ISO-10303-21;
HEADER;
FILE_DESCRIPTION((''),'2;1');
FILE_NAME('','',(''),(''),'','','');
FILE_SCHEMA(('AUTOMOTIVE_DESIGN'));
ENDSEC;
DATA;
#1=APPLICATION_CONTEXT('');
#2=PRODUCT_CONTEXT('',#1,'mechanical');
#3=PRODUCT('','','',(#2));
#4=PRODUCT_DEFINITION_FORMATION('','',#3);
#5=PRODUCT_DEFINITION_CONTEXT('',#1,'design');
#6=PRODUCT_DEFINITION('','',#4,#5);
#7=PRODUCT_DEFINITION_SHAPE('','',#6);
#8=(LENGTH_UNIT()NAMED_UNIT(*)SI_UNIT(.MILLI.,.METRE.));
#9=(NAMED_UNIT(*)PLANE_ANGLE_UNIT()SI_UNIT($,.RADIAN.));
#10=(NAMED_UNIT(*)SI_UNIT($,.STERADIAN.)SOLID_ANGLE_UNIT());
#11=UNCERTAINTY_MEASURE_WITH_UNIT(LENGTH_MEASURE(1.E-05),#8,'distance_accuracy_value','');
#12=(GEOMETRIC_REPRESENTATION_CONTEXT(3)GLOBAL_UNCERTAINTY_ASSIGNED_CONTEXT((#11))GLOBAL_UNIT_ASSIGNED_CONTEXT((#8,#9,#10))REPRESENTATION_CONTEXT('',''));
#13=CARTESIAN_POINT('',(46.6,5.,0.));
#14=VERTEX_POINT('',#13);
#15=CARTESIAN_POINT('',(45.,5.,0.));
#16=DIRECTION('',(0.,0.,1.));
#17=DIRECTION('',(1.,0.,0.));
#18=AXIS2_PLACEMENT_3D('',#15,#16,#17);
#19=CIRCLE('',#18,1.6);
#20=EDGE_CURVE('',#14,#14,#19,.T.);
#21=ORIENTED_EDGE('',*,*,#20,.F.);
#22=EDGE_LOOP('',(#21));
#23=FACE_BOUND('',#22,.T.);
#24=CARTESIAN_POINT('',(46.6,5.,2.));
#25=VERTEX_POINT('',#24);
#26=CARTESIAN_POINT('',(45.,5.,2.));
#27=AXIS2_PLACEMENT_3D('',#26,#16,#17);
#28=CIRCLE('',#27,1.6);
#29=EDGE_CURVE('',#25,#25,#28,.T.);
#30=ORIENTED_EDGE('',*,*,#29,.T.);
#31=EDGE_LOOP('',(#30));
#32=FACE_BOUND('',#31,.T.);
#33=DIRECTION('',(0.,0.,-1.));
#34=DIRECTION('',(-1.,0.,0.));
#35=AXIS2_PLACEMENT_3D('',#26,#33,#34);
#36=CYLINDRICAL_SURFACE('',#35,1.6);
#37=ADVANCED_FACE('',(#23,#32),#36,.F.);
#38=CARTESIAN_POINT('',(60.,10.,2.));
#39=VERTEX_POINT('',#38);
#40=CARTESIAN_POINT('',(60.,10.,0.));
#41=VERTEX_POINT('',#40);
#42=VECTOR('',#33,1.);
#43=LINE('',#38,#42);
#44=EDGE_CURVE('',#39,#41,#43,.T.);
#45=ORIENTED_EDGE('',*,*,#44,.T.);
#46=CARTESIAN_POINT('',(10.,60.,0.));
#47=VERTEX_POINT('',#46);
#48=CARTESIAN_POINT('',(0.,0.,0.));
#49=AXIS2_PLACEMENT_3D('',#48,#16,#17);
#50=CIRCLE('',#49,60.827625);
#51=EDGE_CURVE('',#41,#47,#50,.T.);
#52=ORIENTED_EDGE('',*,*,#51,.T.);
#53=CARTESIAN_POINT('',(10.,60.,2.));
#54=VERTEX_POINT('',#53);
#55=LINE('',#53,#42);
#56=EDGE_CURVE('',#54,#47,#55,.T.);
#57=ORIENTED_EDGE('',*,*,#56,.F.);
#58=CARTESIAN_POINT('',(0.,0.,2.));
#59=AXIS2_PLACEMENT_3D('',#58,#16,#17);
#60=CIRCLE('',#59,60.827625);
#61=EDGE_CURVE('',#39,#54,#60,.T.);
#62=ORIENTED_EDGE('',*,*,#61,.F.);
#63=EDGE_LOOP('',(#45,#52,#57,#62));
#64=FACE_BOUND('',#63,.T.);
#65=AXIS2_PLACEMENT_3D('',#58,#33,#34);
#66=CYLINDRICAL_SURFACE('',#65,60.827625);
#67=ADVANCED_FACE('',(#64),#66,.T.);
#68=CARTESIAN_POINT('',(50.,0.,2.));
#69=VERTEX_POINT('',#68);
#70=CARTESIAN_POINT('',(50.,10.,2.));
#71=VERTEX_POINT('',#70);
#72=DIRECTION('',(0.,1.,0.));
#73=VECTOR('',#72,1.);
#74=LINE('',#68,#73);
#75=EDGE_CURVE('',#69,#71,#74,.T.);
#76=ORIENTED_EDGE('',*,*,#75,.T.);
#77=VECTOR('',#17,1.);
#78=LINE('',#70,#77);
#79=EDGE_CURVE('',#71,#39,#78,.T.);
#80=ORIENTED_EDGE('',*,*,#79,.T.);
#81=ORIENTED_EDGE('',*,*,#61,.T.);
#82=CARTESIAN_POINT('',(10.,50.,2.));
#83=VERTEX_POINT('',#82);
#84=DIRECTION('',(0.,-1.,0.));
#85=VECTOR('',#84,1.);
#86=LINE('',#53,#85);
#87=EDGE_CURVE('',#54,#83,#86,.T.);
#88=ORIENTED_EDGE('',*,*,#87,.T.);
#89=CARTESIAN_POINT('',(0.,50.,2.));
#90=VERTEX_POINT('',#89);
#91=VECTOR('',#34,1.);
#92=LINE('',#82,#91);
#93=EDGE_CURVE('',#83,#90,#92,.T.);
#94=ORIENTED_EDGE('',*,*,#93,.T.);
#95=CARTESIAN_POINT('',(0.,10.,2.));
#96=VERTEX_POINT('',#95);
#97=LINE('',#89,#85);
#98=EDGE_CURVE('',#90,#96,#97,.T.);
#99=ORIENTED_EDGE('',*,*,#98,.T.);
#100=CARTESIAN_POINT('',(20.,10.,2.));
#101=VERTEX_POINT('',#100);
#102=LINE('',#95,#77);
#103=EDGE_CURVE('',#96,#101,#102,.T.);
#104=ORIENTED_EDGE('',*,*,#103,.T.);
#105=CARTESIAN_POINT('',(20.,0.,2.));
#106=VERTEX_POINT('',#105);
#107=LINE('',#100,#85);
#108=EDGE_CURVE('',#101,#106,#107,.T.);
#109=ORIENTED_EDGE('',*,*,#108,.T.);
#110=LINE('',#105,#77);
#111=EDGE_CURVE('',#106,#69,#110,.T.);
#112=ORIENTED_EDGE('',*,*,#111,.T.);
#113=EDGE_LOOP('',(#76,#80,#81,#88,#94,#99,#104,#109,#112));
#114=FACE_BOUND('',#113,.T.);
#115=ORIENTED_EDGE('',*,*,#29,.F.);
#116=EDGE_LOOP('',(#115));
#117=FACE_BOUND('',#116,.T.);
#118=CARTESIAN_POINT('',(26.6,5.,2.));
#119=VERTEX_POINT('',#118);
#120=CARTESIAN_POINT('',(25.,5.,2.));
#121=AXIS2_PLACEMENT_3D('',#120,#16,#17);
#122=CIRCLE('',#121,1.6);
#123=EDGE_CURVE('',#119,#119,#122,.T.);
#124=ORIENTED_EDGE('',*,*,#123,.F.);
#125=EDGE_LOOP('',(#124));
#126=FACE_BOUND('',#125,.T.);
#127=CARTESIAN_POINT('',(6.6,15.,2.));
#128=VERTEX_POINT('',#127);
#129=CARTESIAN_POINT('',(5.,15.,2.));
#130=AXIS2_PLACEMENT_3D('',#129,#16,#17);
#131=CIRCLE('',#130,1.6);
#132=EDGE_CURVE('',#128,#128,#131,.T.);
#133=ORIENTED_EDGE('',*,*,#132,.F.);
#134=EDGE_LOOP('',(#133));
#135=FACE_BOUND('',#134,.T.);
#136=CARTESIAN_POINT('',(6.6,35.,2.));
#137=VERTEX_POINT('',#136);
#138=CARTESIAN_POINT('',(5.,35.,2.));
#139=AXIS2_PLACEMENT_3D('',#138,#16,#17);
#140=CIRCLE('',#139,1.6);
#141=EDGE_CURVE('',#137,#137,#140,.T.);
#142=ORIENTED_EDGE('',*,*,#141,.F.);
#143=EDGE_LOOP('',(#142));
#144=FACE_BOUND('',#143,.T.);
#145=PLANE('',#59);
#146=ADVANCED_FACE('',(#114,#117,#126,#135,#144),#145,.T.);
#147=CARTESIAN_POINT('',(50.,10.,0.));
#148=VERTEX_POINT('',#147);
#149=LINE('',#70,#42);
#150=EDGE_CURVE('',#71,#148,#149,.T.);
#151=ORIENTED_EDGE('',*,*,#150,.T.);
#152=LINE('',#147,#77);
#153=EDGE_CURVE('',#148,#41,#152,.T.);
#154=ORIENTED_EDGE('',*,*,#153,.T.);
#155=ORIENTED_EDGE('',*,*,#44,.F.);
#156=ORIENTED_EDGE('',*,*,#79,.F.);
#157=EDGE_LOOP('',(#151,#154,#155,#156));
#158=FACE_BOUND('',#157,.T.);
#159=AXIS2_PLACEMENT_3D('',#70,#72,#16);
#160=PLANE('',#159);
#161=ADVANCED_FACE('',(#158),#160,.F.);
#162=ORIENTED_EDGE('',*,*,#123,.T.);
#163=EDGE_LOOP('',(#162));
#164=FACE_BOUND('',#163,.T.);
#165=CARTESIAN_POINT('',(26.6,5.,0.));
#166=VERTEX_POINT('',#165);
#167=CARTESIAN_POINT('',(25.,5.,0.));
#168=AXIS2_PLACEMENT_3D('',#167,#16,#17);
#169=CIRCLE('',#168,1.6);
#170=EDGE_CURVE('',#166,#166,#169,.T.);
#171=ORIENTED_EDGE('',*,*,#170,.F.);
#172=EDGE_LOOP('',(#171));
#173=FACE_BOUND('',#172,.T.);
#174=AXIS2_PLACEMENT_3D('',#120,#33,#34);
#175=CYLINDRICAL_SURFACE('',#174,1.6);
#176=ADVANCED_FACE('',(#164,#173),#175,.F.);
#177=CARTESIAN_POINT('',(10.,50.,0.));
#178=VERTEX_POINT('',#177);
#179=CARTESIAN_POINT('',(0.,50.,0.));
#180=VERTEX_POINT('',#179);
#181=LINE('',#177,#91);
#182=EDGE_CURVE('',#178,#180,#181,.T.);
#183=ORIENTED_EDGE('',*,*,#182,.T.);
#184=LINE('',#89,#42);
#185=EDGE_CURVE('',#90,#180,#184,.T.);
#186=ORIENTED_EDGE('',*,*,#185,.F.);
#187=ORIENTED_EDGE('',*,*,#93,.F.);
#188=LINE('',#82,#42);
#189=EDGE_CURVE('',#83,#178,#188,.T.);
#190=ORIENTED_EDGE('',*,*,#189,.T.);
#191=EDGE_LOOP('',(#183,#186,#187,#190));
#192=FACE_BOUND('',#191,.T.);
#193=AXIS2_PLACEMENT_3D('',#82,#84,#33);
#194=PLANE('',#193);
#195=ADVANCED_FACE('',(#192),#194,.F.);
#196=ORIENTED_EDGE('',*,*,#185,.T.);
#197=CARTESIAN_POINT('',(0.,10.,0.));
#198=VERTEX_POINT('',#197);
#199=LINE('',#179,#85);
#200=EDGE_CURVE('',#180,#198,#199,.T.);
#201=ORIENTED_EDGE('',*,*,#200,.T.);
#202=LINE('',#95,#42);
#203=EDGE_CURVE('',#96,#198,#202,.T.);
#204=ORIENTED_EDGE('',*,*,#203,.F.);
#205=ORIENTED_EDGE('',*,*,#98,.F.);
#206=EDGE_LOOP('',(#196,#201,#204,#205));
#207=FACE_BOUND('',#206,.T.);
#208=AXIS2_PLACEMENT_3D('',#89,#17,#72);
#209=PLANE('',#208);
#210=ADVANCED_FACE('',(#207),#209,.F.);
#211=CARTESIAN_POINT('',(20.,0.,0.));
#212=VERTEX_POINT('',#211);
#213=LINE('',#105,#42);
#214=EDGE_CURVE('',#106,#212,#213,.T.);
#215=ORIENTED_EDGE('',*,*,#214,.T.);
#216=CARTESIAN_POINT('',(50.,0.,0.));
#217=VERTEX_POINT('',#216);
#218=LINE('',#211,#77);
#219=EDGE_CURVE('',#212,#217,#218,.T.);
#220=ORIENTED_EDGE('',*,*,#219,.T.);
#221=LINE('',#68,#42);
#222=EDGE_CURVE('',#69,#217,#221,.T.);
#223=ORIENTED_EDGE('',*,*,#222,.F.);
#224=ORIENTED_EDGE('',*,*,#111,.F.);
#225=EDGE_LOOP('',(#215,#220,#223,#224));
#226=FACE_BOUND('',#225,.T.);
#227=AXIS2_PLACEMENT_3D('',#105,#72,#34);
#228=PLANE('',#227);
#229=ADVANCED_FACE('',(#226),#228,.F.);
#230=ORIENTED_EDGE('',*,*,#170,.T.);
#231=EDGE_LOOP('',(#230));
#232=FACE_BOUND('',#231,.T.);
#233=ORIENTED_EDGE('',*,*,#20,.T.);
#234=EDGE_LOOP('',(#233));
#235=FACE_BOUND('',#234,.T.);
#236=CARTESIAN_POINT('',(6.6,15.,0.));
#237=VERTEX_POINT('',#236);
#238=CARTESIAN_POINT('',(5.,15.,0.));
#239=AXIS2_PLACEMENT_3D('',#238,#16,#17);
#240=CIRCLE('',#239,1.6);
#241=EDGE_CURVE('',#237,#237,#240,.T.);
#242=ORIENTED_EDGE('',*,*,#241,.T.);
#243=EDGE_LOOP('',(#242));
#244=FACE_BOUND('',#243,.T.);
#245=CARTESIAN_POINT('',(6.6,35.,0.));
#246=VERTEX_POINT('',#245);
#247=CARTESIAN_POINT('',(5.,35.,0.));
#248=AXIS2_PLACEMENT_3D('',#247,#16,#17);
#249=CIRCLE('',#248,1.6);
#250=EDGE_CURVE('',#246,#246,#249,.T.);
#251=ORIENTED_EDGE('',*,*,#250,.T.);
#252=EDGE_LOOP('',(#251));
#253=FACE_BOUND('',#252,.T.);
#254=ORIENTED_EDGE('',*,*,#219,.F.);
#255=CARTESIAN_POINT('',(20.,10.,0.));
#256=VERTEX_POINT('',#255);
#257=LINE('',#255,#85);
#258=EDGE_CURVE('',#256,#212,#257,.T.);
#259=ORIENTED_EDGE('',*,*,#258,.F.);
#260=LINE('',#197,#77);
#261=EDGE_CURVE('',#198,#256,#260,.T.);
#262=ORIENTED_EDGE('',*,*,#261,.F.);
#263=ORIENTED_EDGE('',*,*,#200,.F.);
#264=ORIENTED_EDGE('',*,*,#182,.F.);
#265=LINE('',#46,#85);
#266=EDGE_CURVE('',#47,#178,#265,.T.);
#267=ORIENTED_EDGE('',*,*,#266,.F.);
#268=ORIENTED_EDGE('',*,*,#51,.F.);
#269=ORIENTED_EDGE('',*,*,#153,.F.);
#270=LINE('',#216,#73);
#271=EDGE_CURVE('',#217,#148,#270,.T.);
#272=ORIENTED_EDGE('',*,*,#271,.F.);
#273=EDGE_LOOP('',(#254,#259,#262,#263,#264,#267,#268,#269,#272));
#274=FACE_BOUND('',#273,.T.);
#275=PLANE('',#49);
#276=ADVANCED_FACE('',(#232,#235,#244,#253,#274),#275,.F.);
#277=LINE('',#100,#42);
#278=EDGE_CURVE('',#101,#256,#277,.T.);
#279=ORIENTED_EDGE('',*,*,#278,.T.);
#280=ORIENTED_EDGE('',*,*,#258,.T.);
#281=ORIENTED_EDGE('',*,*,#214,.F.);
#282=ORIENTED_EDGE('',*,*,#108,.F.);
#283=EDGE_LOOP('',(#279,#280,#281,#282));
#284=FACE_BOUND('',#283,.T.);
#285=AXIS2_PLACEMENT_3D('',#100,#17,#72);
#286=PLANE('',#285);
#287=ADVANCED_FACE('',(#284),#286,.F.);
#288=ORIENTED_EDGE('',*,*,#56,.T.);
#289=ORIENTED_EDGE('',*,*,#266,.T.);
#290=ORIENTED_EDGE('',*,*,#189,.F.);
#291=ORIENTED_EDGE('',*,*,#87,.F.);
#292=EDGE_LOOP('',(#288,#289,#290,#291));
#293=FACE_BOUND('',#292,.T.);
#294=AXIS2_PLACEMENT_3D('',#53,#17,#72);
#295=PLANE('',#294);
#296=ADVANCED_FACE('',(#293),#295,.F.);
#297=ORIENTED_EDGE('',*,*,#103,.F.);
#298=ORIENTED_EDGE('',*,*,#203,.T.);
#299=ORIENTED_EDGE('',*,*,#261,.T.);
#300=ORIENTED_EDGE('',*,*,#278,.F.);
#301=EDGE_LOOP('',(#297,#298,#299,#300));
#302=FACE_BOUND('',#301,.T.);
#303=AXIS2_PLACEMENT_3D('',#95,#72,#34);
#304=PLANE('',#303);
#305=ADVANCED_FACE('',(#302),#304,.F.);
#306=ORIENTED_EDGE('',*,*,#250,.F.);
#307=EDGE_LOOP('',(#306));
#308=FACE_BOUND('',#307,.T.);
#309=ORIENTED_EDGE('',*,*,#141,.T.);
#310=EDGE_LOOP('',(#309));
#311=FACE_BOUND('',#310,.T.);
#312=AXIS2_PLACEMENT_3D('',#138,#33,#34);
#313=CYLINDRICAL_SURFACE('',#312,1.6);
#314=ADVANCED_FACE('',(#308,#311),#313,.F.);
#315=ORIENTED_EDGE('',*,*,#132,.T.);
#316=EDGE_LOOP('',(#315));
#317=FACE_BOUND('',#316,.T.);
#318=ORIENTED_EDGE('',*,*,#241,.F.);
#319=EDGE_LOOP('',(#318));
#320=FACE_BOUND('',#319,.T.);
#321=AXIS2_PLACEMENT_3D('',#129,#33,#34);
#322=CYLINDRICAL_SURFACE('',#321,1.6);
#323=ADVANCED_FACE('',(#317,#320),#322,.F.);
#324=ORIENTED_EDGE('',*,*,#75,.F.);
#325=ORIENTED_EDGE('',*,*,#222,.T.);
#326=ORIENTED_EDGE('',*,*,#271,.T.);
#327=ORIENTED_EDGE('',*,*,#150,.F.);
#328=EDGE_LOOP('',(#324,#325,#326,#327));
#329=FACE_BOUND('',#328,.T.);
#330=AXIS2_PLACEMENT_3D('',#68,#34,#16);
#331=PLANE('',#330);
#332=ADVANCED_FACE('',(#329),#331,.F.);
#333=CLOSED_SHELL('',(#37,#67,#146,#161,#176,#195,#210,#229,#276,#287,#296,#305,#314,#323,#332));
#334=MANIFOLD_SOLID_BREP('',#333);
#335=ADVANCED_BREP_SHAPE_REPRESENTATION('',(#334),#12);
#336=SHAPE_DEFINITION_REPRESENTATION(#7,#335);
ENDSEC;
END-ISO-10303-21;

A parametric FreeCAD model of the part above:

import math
import FreeCAD as App
import Part
import Sketcher

V = App.Vector

doc = App.newDocument("Part")
body = doc.addObject("PartDesign::Body", "Body")

# Sketch on XY plane
sketch1 = body.newObject("Sketcher::SketchObject", "Sketch")
sketch1.AttachmentSupport = (doc.getObject("XY_Plane"), [""])
sketch1.MapMode = "FlatFace"
sketch1.addGeometry(Part.LineSegment(V(20, 0, 0), V(50, 0, 0)), False)
sketch1.addGeometry(Part.LineSegment(V(50, 0, 0), V(50, 10, 0)), False)
sketch1.addGeometry(Part.LineSegment(V(50, 10, 0), V(60, 10, 0)), False)
sketch1.addGeometry(Part.ArcOfCircle(Part.Circle(V(0, 0, 0), V(0, 0, 1), 60.8), math.radians(9), math.radians(81)), False)
sketch1.addGeometry(Part.LineSegment(V(10, 60, 0), V(10, 50, 0)), False)
sketch1.addGeometry(Part.LineSegment(V(10, 50, 0), V(0, 50, 0)), False)
sketch1.addGeometry(Part.LineSegment(V(0, 50, 0), V(0, 10, 0)), False)
sketch1.addGeometry(Part.LineSegment(V(0, 10, 0), V(20, 10, 0)), False)
sketch1.addGeometry(Part.LineSegment(V(20, 10, 0), V(20, 0, 0)), False)
sketch1.addGeometry(Part.Circle(V(5, 15, 0), V(0, 0, 1), 1.6), False)
sketch1.addGeometry(Part.Circle(V(25, 5, 0), V(0, 0, 1), 1.6), False)
sketch1.addGeometry(Part.Circle(V(45, 5, 0), V(0, 0, 1), 1.6), False)
sketch1.addGeometry(Part.Circle(V(5, 35, 0), V(0, 0, 1), 1.6), False)
sketch1.addConstraint(Sketcher.Constraint("Coincident", 0, 2, 1, 1))
sketch1.addConstraint(Sketcher.Constraint("Coincident", 1, 2, 2, 1))
sketch1.addConstraint(Sketcher.Constraint("Coincident", 2, 2, 3, 1))
sketch1.addConstraint(Sketcher.Constraint("Coincident", 3, 2, 4, 1))
sketch1.addConstraint(Sketcher.Constraint("Coincident", 4, 2, 5, 1))
sketch1.addConstraint(Sketcher.Constraint("Coincident", 5, 2, 6, 1))
sketch1.addConstraint(Sketcher.Constraint("Coincident", 6, 2, 7, 1))
sketch1.addConstraint(Sketcher.Constraint("Coincident", 7, 2, 8, 1))
sketch1.addConstraint(Sketcher.Constraint("Coincident", 8, 2, 0, 1))
sketch1.addConstraint(Sketcher.Constraint("Horizontal", 0))
sketch1.addConstraint(Sketcher.Constraint("Vertical", 1))
sketch1.addConstraint(Sketcher.Constraint("Horizontal", 2))
sketch1.addConstraint(Sketcher.Constraint("Vertical", 4))
sketch1.addConstraint(Sketcher.Constraint("Horizontal", 5))
sketch1.addConstraint(Sketcher.Constraint("Vertical", 6))
sketch1.addConstraint(Sketcher.Constraint("Horizontal", 7))
sketch1.addConstraint(Sketcher.Constraint("Vertical", 8))
sketch1.addConstraint(Sketcher.Constraint("Coincident", 3, 3, -1, 1))
sketch1.addConstraint(Sketcher.Constraint("Equal", 9, 10))
sketch1.addConstraint(Sketcher.Constraint("Equal", 10, 11))
sketch1.addConstraint(Sketcher.Constraint("Equal", 11, 12))
sketch1.addConstraint(Sketcher.Constraint("PointOnObject", 0, 2, -1))
sketch1.addConstraint(Sketcher.Constraint("PointOnObject", 5, 2, -2))
sketch1.addConstraint(Sketcher.Constraint("Horizontal", 10, 3, 11, 3))
sketch1.addConstraint(Sketcher.Constraint("Horizontal", 2, 2, 6, 2))
sketch1.addConstraint(Sketcher.Constraint("Vertical", 9, 3, 12, 3))
sketch1.addConstraint(Sketcher.Constraint("Equal", 2, 5))
sketch1.addConstraint(Sketcher.Constraint("Equal", 5, 1))
sketch1.addConstraint(Sketcher.Constraint("Equal", 1, 4))
sketch1.addConstraint(Sketcher.Constraint("Diameter", 9, 3.2))
sketch1.addConstraint(Sketcher.Constraint("DistanceX", 0, 1, 0, 2, 30.0))
sketch1.addConstraint(Sketcher.Constraint("DistanceX", 2, 1, 2, 2, 10.0))
sketch1.addConstraint(Sketcher.Constraint("DistanceX", 7, 1, 7, 2, 20.0))
sketch1.addConstraint(Sketcher.Constraint("DistanceX", -1, 1, 9, 3, 5.0))
sketch1.addConstraint(Sketcher.Constraint("DistanceY", -1, 1, 9, 3, 15.0))
sketch1.addConstraint(Sketcher.Constraint("DistanceX", -1, 1, 10, 3, 25.0))
sketch1.addConstraint(Sketcher.Constraint("DistanceY", -1, 1, 10, 3, 5.0))
sketch1.addConstraint(Sketcher.Constraint("DistanceX", -1, 1, 11, 3, 45.0))
sketch1.addConstraint(Sketcher.Constraint("DistanceY", -1, 1, 12, 3, 35.0))
pad1 = body.newObject("PartDesign::Pad", "Pad")
pad1.Profile = sketch1
pad1.Length = 2

doc.recompute()
